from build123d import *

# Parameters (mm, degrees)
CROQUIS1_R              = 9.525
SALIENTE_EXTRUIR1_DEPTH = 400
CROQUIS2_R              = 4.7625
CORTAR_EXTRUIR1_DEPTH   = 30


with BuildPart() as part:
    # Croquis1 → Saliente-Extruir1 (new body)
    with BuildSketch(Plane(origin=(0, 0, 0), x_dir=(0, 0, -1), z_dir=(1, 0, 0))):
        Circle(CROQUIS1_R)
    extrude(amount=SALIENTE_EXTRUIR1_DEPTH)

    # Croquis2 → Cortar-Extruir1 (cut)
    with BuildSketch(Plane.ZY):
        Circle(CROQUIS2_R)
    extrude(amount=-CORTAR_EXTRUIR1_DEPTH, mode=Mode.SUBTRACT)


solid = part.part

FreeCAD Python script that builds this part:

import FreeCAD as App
import Part
import Sketcher

V = App.Vector

doc = App.newDocument("Part")
body = doc.addObject("PartDesign::Body", "Body")

# Sketch on YZ plane
sketch1 = doc.addObject("Sketcher::SketchObject", "Sketch")
body.addObject(sketch1)
sketch1.AttachmentSupport = (doc.YZ_Plane, [""])
sketch1.MapMode = "FlatFace"
sketch1.addGeometry(Part.Circle(V(0, 0, 0), V(0, 0, 1), 10), False)
sketch1.addConstraint([
    Sketcher.Constraint("Coincident", 0, 3, -1, 1),
    Sketcher.Constraint("Diameter", 0, 19.05),
])
pad1 = doc.addObject("PartDesign::Pad", "Pad")
body.addObject(pad1)
pad1.Profile = sketch1
pad1.Length = 400

# Sketch on YZ plane
sketch2 = doc.addObject("Sketcher::SketchObject", "Sketch001")
body.addObject(sketch2)
sketch2.AttachmentSupport = (doc.YZ_Plane, [""])
sketch2.MapMode = "FlatFace"
sketch2.addGeometry(Part.Circle(V(0, 0, 0), V(0, 0, 1), 4.8), False)
sketch2.addConstraint([
    Sketcher.Constraint("Coincident", 0, 3, -1, 1),
    Sketcher.Constraint("Diameter", 0, 9.525),
])
pocket1 = doc.addObject("PartDesign::Pocket", "Pocket")
body.addObject(pocket1)
pocket1.Profile = sketch2
pocket1.Length = 30
pocket1.Reversed = True

doc.recompute()
